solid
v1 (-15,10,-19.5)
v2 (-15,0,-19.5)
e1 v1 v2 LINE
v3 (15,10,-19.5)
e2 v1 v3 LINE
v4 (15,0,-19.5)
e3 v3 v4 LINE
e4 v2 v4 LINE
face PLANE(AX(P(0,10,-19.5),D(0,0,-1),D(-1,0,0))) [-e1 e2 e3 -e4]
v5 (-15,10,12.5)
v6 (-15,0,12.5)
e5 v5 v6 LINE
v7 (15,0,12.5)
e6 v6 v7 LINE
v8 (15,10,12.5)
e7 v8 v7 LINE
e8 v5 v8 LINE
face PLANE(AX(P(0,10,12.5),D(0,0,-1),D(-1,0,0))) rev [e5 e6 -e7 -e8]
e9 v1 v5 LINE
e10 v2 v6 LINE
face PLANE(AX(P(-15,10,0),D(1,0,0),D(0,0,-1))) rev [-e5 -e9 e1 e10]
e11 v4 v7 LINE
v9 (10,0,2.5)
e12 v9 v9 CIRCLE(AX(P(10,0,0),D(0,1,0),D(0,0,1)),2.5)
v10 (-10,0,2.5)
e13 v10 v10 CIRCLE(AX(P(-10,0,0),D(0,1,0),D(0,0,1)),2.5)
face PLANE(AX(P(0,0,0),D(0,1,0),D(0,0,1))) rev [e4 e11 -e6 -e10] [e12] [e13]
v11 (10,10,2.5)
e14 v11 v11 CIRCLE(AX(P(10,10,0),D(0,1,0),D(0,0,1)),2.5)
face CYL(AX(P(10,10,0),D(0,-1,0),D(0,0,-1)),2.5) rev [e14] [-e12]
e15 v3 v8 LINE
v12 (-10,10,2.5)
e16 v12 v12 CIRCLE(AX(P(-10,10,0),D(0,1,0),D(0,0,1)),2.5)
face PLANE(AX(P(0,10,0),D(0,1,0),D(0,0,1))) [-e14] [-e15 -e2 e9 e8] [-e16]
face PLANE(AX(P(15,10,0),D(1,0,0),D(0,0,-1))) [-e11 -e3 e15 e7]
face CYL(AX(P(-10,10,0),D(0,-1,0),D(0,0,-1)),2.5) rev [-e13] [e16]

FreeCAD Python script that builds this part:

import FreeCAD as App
import Part
import Sketcher
from FreeCAD import Vector
Q = App.Units.Quantity

doc = App.newDocument("Part")
body = doc.addObject("PartDesign::Body", "Body")

sketch1 = body.newObject("Sketcher::SketchObject", "Sketch")
sketch1.AttachmentSupport = (doc.getObject("XZ_Plane"), [""])
sketch1.MapMode = "FlatFace"
sketch1.addGeometry([
    Part.LineSegment(Vector(-15, 12.5, 0), Vector(15, 12.5, 0)),
    Part.LineSegment(Vector(15, 12.5, 0), Vector(15, -19.5, 0)),
    Part.LineSegment(Vector(15, -19.5, 0), Vector(-15, -19.5, 0)),
    Part.LineSegment(Vector(-15, -19.5, 0), Vector(-15, 12.5, 0)),
    Part.Circle(Vector(-10, 0, 0), Vector(0, 0, 1), 2.5),
    Part.Circle(Vector(10, 0, 0), Vector(0, 0, 1), 2.5),
], False)
sketch1.addConstraint([
    Sketcher.Constraint("Coincident", 0, 2, 1, 1),
    Sketcher.Constraint("Coincident", 1, 2, 2, 1),
    Sketcher.Constraint("Coincident", 2, 2, 3, 1),
    Sketcher.Constraint("Coincident", 3, 2, 0, 1),
    Sketcher.Constraint("Horizontal", 0),
    Sketcher.Constraint("Vertical", 1),
    Sketcher.Constraint("Horizontal", 2),
    Sketcher.Constraint("Vertical", 3),
    Sketcher.Constraint("Equal", 4, 5),
    Sketcher.Constraint("Symmetric", 4, 3, 5, 3, -1, 1),
    Sketcher.Constraint("PointOnObject", 4, 3, -1),
    Sketcher.Constraint("Diameter", 4, Q("5 mm")),
    Sketcher.Constraint("DistanceX", 0, 1, 0, 2, Q("30 mm")),
    Sketcher.Constraint("DistanceY", 1, 2, 1, 1, Q("32 mm")),
    Sketcher.Constraint("DistanceX", 4, 3, -1, 1, Q("10 mm")),
    Sketcher.Constraint("DistanceX", -1, 1, 0, 2, Q("15 mm")),
    Sketcher.Constraint("DistanceY", -1, 1, 0, 2, Q("12.5 mm")),
])
pad1 = body.newObject("PartDesign::Pad", "Pad")
pad1.Profile = sketch1
pad1.Length = 10
pad1.Reversed = True

doc.recompute()
